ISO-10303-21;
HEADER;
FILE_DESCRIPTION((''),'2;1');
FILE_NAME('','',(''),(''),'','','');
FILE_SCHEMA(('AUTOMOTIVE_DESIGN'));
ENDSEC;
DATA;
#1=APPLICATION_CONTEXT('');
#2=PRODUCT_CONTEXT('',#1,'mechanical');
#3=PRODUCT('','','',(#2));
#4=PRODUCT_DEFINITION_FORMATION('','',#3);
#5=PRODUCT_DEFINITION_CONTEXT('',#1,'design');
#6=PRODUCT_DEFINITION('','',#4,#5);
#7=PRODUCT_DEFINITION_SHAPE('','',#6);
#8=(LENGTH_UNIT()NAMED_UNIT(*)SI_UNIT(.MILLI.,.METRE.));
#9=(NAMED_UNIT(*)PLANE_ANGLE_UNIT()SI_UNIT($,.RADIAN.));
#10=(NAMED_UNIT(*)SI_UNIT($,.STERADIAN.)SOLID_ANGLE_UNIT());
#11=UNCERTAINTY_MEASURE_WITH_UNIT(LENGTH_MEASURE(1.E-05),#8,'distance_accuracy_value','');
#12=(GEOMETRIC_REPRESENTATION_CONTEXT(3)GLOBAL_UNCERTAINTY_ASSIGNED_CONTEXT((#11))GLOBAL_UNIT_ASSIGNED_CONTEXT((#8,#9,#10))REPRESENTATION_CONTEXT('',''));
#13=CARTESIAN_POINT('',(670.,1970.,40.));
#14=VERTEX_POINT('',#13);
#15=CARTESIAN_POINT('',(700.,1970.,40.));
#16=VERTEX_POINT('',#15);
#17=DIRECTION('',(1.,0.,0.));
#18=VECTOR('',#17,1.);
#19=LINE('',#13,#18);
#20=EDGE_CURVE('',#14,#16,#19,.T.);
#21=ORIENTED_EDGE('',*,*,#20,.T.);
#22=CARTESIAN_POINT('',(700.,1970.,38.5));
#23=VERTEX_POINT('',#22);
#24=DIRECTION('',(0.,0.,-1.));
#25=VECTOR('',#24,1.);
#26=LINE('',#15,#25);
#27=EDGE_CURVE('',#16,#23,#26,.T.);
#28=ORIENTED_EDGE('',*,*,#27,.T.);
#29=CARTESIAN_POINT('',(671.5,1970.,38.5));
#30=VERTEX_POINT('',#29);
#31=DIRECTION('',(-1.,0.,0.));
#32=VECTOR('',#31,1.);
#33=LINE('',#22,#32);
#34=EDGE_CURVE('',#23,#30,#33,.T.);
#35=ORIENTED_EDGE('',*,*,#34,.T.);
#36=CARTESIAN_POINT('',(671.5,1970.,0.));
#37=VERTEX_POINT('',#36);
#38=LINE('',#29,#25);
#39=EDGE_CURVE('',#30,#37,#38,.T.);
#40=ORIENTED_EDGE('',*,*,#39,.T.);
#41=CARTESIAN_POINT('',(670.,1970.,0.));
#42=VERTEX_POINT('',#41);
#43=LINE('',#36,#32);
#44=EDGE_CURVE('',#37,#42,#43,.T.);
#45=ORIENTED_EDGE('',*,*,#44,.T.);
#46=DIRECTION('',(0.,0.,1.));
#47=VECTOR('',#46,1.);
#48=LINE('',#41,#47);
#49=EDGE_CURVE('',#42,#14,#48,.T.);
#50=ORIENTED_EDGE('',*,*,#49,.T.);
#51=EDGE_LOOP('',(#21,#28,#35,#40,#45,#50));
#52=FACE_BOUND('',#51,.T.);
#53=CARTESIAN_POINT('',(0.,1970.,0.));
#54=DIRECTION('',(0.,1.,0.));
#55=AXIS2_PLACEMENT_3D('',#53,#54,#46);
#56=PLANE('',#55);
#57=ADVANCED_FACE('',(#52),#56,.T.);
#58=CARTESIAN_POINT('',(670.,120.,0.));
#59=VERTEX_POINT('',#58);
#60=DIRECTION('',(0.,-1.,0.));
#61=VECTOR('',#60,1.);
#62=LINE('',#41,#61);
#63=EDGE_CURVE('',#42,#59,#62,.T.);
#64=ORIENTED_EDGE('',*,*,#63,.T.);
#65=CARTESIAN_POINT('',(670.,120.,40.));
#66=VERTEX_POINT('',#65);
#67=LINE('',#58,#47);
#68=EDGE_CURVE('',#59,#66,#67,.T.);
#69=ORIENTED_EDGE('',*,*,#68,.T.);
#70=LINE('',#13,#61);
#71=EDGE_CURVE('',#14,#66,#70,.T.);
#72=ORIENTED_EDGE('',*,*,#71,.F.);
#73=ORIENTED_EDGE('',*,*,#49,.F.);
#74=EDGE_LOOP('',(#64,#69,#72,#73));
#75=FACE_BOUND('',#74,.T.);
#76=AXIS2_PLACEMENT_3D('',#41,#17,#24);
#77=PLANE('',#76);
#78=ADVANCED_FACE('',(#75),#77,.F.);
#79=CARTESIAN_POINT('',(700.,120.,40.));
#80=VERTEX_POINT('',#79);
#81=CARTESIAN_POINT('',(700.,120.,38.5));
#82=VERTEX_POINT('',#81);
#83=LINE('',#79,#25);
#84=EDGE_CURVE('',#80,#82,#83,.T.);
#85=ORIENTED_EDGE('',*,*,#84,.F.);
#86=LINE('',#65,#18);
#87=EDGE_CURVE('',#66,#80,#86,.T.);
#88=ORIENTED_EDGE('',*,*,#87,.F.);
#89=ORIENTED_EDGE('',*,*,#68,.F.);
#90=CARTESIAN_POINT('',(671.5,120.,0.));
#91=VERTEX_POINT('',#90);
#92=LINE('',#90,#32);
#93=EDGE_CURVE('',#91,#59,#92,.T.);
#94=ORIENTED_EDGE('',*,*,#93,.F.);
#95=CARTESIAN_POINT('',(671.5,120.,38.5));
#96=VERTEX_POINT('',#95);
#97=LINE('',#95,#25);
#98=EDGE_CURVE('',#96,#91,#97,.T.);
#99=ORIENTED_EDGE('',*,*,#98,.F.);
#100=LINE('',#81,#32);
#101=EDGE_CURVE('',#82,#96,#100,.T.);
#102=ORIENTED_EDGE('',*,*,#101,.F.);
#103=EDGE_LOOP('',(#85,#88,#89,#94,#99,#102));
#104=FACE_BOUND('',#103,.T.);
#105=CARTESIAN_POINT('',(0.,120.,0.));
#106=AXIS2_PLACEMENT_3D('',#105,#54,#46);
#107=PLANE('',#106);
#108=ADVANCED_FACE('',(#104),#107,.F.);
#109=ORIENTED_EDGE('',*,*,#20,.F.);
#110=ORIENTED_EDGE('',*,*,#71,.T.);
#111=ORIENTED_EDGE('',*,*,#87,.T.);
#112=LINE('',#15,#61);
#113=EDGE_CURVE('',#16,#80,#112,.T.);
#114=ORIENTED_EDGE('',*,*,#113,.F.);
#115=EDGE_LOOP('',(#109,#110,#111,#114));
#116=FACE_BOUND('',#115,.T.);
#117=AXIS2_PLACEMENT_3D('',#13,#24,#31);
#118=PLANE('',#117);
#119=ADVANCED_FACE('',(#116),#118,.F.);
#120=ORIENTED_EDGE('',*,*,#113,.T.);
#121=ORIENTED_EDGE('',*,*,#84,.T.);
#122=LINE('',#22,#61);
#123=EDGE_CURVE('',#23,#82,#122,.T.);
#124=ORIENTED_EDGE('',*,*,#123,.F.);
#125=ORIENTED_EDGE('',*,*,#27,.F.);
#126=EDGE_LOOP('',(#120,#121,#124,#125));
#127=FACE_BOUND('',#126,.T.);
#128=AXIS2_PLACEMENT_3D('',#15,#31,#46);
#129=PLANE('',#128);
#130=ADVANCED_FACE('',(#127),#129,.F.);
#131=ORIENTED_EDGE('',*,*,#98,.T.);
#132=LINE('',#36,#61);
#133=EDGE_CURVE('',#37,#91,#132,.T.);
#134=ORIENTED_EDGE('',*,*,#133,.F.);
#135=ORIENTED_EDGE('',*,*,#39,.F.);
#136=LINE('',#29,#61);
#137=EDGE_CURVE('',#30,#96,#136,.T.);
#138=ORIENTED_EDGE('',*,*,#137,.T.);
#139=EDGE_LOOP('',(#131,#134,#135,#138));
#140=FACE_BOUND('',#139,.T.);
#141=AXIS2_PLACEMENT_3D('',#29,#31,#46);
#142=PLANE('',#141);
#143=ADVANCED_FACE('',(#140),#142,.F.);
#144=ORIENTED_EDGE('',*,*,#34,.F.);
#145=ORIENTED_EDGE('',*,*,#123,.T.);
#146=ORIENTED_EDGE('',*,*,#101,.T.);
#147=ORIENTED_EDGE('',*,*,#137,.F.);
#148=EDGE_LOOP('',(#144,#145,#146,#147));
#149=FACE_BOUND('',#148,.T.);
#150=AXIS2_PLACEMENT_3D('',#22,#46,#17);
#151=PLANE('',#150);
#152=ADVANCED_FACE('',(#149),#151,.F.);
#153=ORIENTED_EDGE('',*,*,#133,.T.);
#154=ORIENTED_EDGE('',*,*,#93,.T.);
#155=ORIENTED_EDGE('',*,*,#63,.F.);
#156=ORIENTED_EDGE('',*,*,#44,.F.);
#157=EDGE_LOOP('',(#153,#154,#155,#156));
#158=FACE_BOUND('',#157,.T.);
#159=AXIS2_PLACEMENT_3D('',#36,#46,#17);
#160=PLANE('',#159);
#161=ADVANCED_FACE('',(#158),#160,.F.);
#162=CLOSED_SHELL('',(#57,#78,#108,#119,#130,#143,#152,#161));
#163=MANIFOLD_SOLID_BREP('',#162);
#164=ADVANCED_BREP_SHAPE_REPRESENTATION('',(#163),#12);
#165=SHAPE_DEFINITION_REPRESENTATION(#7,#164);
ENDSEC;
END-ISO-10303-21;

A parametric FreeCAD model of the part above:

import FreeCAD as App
import Part
import Sketcher

V = App.Vector

doc = App.newDocument("Part")
params = doc.addObject("Spreadsheet::Sheet", "Params")
for row, (alias, value) in enumerate([
    ("sketch1_width", "30 mm"),
    ("sketch1_height", "40 mm"),
    ("sketch1_width2", "28.5 mm"),
    ("pad1_length", "1850 mm"),
], start=1):
    params.set(f"A{row}", alias)
    params.set(f"B{row}", "=" + value)
    params.setAlias(f"B{row}", alias)

body = doc.addObject("PartDesign::Body", "Body")

sketch1 = body.newObject("Sketcher::SketchObject", "Sketch")
sketch1.AttachmentSupport = (doc.getObject("XZ_Plane"), [""])
sketch1.MapMode = "FlatFace"
sketch1.AttachmentOffset = App.Placement(V(0, 0, -120), App.Rotation())
sketch1.addGeometry(Part.LineSegment(V(700, 40, 0), V(700, 38.5, 0)), False)
sketch1.addGeometry(Part.LineSegment(V(700, 38.5, 0), V(671.5, 38.5, 0)), False)
sketch1.addGeometry(Part.LineSegment(V(671.5, 38.5, 0), V(671.5, 0, 0)), False)
sketch1.addGeometry(Part.LineSegment(V(671.5, 0, 0), V(670, 0, 0)), False)
sketch1.addGeometry(Part.LineSegment(V(670, 0, 0), V(670, 40, 0)), False)
sketch1.addGeometry(Part.LineSegment(V(670, 40, 0), V(700, 40, 0)), False)
sketch1.addConstraint(Sketcher.Constraint("Coincident", 0, 2, 1, 1))
sketch1.addConstraint(Sketcher.Constraint("Coincident", 1, 2, 2, 1))
sketch1.addConstraint(Sketcher.Constraint("Coincident", 2, 2, 3, 1))
sketch1.addConstraint(Sketcher.Constraint("Coincident", 3, 2, 4, 1))
sketch1.addConstraint(Sketcher.Constraint("Coincident", 4, 2, 5, 1))
sketch1.addConstraint(Sketcher.Constraint("Coincident", 5, 2, 0, 1))
sketch1.addConstraint(Sketcher.Constraint("Vertical", 0))
sketch1.addConstraint(Sketcher.Constraint("Horizontal", 1))
sketch1.addConstraint(Sketcher.Constraint("Vertical", 2))
sketch1.addConstraint(Sketcher.Constraint("Horizontal", 3))
sketch1.addConstraint(Sketcher.Constraint("Vertical", 4))
sketch1.addConstraint(Sketcher.Constraint("Horizontal", 5))
sketch1.addConstraint(Sketcher.Constraint("PointOnObject", 2, 2, -1))
sketch1.addConstraint(Sketcher.Constraint("Equal", 3, 0))
sketch1.addConstraint(Sketcher.Constraint("DistanceX", 5, 1, 5, 2, 30.0))
sketch1.addConstraint(Sketcher.Constraint("DistanceY", 4, 1, 4, 2, 40.0))
sketch1.addConstraint(Sketcher.Constraint("DistanceX", 1, 2, 1, 1, 28.5))
sketch1.addConstraint(Sketcher.Constraint("DistanceX", -1, 1, 0, 2, 700.0))
sketch1.setExpression("Constraints[14]", "Params.sketch1_width")
sketch1.setExpression("Constraints[15]", "Params.sketch1_height")
sketch1.setExpression("Constraints[16]", "Params.sketch1_width2")
pad1 = body.newObject("PartDesign::Pad", "Pad")
pad1.Profile = sketch1
pad1.setExpression("Length", "Params.pad1_length")
pad1.Reversed = True

doc.recompute()
